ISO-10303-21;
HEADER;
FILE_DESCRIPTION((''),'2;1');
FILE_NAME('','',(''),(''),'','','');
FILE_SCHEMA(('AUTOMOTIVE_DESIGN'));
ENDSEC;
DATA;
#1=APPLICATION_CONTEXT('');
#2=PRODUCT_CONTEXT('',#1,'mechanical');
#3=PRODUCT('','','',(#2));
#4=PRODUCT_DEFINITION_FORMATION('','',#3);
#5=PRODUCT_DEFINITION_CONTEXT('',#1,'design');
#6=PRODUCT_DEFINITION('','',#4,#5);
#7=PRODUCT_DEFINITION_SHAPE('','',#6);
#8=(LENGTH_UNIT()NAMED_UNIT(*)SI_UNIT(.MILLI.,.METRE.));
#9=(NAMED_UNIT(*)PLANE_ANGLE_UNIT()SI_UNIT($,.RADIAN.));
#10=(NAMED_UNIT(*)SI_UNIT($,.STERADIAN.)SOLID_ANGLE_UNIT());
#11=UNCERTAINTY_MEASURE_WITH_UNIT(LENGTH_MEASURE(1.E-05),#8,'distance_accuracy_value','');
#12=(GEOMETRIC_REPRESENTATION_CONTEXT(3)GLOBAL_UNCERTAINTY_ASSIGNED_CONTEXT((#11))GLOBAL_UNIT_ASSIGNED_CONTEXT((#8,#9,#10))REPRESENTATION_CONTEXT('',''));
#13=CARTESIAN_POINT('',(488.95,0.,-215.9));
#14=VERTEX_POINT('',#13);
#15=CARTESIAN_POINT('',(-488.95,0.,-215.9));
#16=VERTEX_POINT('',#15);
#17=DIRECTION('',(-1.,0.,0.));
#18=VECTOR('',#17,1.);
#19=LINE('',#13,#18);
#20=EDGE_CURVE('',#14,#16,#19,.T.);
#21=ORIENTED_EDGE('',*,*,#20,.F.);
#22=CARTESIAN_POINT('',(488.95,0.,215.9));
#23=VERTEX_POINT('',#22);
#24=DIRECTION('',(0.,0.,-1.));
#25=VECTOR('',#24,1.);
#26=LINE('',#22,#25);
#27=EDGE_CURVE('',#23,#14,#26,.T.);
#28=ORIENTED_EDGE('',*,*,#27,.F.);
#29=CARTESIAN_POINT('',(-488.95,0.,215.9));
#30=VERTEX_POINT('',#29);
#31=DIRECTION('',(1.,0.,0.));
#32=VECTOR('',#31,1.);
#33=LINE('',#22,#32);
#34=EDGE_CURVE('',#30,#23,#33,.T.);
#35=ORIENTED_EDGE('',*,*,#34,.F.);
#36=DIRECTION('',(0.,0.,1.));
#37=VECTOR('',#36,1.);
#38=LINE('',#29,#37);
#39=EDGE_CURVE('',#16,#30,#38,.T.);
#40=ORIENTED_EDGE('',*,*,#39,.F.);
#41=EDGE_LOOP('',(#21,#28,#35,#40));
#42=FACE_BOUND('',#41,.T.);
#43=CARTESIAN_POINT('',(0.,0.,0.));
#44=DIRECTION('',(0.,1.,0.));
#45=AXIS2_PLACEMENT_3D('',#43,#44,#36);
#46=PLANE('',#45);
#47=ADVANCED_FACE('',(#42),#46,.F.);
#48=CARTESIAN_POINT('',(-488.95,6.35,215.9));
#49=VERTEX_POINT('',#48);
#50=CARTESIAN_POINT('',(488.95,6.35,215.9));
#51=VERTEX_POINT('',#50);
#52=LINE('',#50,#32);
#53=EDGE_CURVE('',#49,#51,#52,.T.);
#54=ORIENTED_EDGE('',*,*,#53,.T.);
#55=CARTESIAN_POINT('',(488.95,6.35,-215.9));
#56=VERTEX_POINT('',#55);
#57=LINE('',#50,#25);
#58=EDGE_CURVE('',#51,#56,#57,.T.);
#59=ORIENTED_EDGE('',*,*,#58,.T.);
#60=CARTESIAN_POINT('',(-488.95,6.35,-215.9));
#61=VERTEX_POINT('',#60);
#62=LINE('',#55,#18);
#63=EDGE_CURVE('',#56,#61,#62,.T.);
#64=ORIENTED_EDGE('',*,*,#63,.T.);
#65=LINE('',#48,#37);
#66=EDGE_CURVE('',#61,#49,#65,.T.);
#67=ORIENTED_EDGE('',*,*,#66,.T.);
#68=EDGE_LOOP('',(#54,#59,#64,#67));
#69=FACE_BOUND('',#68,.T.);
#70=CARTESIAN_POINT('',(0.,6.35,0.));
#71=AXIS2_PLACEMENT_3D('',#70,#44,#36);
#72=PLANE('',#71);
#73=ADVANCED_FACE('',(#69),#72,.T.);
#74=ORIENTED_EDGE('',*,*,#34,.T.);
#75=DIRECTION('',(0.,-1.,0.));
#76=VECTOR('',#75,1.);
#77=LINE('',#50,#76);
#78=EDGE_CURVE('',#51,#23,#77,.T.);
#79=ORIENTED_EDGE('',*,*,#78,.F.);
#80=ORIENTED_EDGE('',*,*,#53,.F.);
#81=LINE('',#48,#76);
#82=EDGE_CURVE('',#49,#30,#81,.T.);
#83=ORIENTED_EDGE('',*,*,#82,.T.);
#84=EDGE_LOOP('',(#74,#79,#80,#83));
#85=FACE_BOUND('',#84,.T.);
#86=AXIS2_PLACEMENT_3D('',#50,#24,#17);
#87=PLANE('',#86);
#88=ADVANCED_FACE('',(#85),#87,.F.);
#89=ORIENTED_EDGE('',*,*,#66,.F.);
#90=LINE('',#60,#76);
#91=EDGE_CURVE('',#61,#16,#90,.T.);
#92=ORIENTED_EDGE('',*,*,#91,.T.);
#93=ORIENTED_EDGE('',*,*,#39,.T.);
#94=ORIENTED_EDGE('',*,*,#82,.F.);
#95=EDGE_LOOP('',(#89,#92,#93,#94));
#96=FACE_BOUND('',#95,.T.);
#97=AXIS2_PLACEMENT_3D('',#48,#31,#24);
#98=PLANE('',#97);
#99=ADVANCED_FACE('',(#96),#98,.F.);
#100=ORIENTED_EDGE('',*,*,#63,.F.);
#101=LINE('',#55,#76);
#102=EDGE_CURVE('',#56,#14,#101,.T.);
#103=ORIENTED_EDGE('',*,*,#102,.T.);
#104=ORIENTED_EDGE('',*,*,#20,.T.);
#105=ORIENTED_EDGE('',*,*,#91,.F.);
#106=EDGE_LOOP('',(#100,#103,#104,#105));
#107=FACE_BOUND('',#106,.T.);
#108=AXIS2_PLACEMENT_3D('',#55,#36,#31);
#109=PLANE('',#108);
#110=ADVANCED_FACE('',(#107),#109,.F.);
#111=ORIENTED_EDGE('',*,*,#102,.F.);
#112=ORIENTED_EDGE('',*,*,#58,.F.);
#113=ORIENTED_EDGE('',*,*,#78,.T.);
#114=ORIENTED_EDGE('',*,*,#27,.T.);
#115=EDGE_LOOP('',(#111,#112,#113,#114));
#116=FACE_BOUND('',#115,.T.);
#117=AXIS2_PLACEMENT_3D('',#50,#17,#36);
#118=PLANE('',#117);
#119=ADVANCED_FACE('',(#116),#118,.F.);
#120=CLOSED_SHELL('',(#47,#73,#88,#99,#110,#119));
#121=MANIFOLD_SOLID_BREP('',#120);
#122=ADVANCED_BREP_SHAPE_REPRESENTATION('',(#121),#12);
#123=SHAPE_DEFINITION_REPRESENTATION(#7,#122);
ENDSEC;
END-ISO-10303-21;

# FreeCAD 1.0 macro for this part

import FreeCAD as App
import Part
import Sketcher
from FreeCAD import Vector
Q = App.Units.Quantity

doc = App.newDocument("Part")
params = doc.addObject("Spreadsheet::Sheet", "Params")
for row, (alias, value) in enumerate([
    ("sketch1_height", "17 in"),
    ("sketch1_width", "38.5 in"),
    ("pad1_length", "0.25 in"),
], start=1):
    params.set(f"A{row}", alias)
    params.set(f"B{row}", "=" + value)
    params.setAlias(f"B{row}", alias)

body = doc.addObject("PartDesign::Body", "Body")

sketch1 = doc.addObject("Sketcher::SketchObject", "Sketch")
body.addObject(sketch1)
sketch1.AttachmentSupport = (doc.XZ_Plane, [""])
sketch1.MapMode = "FlatFace"
sketch1.addGeometry(Part.LineSegment(Vector(-488.95, -215.9, 0), Vector(-488.95, 215.9, 0)), False)
sketch1.addGeometry(Part.LineSegment(Vector(-488.95, 215.9, 0), Vector(488.95, 215.9, 0)), False)
sketch1.addGeometry(Part.LineSegment(Vector(488.95, 215.9, 0), Vector(488.95, -215.9, 0)), False)
sketch1.addGeometry(Part.LineSegment(Vector(488.95, -215.9, 0), Vector(-488.95, -215.9, 0)), False)
sketch1.addConstraint(Sketcher.Constraint("Coincident", 0, 2, 1, 1))
sketch1.addConstraint(Sketcher.Constraint("Coincident", 1, 2, 2, 1))
sketch1.addConstraint(Sketcher.Constraint("Coincident", 2, 2, 3, 1))
sketch1.addConstraint(Sketcher.Constraint("Coincident", 3, 2, 0, 1))
sketch1.addConstraint(Sketcher.Constraint("Vertical", 0))
sketch1.addConstraint(Sketcher.Constraint("Horizontal", 1))
sketch1.addConstraint(Sketcher.Constraint("Vertical", 2))
sketch1.addConstraint(Sketcher.Constraint("Horizontal", 3))
sketch1.addConstraint(Sketcher.Constraint("Symmetric", 0, 2, 2, 2, -1, 1))
sketch1.addConstraint(Sketcher.Constraint("DistanceY", 0, 1, 0, 2, Q("17 in")))
sketch1.addConstraint(Sketcher.Constraint("DistanceX", 1, 1, 1, 2, Q("38.5 in")))
sketch1.setExpression("Constraints[9]", "Params.sketch1_height")
sketch1.setExpression("Constraints[10]", "Params.sketch1_width")
pad1 = doc.addObject("PartDesign::Pad", "Pad")
body.addObject(pad1)
pad1.Profile = sketch1
pad1.setExpression("Length", "Params.pad1_length")
pad1.Reversed = True

doc.recompute()
